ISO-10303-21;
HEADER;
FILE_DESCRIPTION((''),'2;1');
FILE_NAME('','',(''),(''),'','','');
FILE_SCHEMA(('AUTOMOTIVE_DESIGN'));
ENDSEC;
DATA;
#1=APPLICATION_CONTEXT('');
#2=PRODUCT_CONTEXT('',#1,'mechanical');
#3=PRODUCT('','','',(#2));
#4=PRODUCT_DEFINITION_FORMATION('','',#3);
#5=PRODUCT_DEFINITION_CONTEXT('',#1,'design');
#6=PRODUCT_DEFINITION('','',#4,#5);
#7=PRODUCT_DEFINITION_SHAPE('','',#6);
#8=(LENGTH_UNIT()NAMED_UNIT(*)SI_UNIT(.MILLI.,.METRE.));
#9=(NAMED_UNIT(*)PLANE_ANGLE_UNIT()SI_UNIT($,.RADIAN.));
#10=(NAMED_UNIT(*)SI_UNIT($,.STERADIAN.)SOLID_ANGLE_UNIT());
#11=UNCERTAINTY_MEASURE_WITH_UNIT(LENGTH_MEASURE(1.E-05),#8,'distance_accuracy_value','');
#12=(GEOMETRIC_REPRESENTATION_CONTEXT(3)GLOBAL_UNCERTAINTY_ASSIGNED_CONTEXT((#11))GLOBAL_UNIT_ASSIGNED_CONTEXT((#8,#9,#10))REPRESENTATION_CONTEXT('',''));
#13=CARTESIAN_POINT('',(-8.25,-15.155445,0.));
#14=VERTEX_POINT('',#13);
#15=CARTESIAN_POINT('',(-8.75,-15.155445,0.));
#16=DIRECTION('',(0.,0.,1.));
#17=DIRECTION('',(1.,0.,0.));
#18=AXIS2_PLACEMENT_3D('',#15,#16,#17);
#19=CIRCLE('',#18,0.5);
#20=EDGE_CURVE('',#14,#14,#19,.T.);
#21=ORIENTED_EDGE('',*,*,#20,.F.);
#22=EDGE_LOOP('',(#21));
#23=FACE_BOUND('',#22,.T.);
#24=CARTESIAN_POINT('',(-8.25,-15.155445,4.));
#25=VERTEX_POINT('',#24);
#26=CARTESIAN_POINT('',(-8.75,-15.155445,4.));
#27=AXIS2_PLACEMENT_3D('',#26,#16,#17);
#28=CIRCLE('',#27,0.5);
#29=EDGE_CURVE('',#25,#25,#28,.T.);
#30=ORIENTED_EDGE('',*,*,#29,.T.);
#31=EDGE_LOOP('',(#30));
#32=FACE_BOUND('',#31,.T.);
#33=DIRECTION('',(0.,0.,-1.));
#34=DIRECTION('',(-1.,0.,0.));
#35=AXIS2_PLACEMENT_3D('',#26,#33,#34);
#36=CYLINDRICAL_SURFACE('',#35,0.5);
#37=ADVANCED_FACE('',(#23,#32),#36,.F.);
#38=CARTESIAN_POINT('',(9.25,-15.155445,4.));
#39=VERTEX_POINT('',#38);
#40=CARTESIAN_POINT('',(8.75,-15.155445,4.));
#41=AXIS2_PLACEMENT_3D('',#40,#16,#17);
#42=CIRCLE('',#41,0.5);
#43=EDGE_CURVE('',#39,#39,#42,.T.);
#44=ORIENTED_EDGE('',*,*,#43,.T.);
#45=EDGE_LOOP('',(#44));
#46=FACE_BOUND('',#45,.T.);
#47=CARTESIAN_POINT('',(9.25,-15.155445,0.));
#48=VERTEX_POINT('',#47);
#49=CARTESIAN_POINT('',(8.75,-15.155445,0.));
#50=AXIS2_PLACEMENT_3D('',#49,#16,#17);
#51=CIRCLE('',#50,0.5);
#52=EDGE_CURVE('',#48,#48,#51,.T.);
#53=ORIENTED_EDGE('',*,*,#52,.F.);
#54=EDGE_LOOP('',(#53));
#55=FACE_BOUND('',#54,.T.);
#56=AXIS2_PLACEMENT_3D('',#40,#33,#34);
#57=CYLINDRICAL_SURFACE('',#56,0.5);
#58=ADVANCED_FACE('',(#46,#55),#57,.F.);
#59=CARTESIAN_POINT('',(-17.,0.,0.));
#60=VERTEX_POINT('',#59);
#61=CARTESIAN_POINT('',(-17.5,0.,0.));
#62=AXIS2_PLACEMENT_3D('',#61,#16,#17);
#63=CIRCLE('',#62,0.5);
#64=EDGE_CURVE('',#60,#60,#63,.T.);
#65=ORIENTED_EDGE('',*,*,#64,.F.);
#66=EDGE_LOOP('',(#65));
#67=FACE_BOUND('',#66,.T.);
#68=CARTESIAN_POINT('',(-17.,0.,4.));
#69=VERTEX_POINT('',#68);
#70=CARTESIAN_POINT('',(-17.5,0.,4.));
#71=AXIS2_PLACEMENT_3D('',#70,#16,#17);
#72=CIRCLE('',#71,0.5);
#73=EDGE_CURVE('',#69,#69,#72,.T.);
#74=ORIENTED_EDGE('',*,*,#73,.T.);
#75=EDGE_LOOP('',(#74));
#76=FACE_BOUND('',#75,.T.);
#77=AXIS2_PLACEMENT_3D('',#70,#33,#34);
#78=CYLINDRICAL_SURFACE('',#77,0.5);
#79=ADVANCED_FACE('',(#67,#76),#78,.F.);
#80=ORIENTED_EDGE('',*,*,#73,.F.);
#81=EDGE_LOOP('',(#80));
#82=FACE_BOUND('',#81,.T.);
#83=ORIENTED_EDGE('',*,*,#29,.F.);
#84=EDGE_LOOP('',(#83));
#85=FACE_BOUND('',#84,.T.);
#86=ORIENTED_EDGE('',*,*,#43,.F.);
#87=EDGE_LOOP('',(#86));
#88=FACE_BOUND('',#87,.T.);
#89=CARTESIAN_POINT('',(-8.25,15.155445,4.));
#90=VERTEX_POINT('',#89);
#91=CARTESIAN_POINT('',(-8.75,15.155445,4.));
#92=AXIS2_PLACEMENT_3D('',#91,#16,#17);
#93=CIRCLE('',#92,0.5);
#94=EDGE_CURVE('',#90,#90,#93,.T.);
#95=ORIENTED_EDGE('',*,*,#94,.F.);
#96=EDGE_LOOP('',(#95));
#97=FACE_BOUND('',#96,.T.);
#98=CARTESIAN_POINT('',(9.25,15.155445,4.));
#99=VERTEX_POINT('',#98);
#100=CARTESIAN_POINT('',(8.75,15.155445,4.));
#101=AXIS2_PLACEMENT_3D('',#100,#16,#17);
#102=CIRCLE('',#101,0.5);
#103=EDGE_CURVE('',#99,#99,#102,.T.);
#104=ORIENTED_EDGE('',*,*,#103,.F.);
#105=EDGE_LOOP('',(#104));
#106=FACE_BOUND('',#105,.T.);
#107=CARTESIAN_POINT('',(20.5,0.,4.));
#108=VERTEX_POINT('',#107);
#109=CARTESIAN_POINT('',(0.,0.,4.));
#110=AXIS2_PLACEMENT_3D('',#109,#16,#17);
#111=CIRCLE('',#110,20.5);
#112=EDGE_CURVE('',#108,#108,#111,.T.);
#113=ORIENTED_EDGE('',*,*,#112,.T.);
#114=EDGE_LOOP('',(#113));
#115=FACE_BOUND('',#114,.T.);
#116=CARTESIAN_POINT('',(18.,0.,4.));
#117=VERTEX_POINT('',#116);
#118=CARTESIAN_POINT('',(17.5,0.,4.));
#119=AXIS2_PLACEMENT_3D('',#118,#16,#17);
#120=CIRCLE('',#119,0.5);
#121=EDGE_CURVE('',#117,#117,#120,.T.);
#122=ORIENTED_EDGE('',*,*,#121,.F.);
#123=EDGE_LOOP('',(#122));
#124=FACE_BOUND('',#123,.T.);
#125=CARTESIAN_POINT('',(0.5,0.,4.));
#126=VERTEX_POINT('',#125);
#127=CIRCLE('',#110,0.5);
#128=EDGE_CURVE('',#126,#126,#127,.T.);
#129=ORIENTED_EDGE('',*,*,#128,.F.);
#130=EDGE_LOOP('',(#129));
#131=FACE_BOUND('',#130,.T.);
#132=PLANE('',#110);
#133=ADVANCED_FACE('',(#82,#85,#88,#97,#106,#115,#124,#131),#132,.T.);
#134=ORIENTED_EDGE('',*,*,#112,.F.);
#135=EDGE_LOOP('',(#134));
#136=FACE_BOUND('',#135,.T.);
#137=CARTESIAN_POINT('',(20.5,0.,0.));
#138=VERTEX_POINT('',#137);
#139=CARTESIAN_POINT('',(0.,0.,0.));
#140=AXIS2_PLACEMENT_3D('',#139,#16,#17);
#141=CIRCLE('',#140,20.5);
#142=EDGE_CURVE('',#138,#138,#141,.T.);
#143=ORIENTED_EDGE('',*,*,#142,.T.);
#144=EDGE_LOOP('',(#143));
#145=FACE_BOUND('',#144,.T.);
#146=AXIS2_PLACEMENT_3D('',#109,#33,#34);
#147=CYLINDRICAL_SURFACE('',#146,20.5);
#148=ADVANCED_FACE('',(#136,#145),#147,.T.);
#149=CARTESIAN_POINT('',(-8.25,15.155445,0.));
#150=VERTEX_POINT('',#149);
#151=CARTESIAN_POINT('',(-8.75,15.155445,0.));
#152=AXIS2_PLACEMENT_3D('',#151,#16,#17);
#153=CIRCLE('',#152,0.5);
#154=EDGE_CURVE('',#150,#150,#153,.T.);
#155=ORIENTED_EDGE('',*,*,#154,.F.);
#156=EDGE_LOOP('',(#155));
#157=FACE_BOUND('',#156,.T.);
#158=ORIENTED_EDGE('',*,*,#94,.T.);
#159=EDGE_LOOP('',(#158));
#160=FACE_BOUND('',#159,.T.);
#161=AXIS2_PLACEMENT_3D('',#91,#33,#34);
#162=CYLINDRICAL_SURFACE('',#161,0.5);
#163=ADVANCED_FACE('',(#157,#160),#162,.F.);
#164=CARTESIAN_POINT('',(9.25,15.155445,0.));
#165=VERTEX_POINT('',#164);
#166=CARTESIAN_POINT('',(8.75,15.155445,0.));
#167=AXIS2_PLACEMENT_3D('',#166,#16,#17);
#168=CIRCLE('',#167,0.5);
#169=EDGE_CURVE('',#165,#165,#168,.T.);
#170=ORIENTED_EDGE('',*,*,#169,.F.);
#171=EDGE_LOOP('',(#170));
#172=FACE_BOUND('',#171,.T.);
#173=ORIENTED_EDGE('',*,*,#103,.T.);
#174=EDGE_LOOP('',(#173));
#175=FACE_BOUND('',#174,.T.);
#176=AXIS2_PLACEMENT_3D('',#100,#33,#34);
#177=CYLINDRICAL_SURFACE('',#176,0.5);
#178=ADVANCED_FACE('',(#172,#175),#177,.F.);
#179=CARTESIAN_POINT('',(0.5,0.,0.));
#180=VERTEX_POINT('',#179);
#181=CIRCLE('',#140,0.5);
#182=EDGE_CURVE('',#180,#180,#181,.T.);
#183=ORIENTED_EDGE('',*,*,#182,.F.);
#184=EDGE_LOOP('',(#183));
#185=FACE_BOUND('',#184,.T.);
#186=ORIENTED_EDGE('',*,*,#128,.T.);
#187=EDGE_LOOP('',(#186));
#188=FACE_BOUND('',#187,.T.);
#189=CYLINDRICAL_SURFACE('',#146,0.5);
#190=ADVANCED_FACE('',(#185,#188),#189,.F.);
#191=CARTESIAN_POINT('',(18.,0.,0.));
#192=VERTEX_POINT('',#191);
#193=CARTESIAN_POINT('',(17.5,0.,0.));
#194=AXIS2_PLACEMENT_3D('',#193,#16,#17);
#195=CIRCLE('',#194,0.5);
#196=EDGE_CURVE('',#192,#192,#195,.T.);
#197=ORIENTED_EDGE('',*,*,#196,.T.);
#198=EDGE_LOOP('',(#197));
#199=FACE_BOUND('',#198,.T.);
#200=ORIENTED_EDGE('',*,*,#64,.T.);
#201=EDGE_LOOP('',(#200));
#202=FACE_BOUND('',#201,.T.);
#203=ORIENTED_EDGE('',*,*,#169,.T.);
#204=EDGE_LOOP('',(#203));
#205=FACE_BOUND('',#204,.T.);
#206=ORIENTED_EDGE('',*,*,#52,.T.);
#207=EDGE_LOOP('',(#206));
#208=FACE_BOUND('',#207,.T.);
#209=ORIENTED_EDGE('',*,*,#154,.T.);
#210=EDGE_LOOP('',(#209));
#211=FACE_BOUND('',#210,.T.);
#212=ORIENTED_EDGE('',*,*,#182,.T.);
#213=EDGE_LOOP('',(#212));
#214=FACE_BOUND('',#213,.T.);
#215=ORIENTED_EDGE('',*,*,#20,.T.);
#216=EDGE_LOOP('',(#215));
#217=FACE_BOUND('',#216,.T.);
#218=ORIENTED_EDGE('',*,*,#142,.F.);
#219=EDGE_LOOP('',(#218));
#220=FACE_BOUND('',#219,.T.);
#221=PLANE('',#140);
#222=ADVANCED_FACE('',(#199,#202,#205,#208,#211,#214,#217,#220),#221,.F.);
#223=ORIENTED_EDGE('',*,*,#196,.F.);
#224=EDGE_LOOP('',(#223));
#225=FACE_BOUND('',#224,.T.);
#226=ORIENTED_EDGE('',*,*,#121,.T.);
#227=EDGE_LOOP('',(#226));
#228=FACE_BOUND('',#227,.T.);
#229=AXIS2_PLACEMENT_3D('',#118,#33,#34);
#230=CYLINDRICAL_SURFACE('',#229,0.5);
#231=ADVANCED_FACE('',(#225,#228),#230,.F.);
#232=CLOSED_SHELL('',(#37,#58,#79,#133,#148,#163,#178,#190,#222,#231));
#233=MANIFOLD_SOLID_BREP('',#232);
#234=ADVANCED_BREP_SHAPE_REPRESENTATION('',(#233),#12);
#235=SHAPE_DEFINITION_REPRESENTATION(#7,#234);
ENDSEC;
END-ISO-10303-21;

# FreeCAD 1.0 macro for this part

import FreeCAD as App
import Part
import Sketcher

doc = App.newDocument("Part")
params = doc.addObject("Spreadsheet::Sheet", "Params")
for row, (alias, value) in enumerate([
    ("sketch1_diameter", "41 mm"),
    ("sketch1_diameter2", "1 mm"),
    ("pad1_length", "4 mm"),
], start=1):
    params.set(f"A{row}", alias)
    params.set(f"B{row}", "=" + value)
    params.setAlias(f"B{row}", alias)

body = doc.addObject("PartDesign::Body", "Body")

sketch1 = body.newObject("Sketcher::SketchObject", "Sketch")
sketch1.AttachmentSupport = (doc.getObject("XY_Plane"), [""])
sketch1.MapMode = "FlatFace"
sketch1.addGeometry(Part.Circle(App.Vector(0, 0, 0), App.Vector(0, 0, 1), 20.5), False)
sketch1.addGeometry(Part.Circle(App.Vector(-8.8, -15.2, 0), App.Vector(0, 0, 1), 0.5), False)
sketch1.addGeometry(Part.Circle(App.Vector(8.8, -15.2, 0), App.Vector(0, 0, 1), 0.5), False)
sketch1.addGeometry(Part.Circle(App.Vector(-17.5, 0, 0), App.Vector(0, 0, 1), 0.5), False)
sketch1.addGeometry(Part.Circle(App.Vector(-8.8, 15.2, 0), App.Vector(0, 0, 1), 0.5), False)
sketch1.addGeometry(Part.Circle(App.Vector(0, 0, 0), App.Vector(0, 0, 1), 0.5), False)
sketch1.addGeometry(Part.Circle(App.Vector(17.5, 0, 0), App.Vector(0, 0, 1), 0.5), False)
sketch1.addGeometry(Part.Circle(App.Vector(8.8, 15.2, 0), App.Vector(0, 0, 1), 0.5), False)
sketch1.addConstraint(Sketcher.Constraint("Coincident", 0, 3, -1, 1))
sketch1.addConstraint(Sketcher.Constraint("Coincident", 5, 3, -1, 1))
sketch1.addConstraint(Sketcher.Constraint("Equal", 1, 2))
sketch1.addConstraint(Sketcher.Constraint("Equal", 2, 3))
sketch1.addConstraint(Sketcher.Constraint("Equal", 3, 4))
sketch1.addConstraint(Sketcher.Constraint("Equal", 4, 5))
sketch1.addConstraint(Sketcher.Constraint("Equal", 5, 6))
sketch1.addConstraint(Sketcher.Constraint("Equal", 6, 7))
sketch1.addConstraint(Sketcher.Constraint("Symmetric", 2, 3, 4, 3, -1, 1))
sketch1.addConstraint(Sketcher.Constraint("Symmetric", 3, 3, 6, 3, -1, 1))
sketch1.addConstraint(Sketcher.Constraint("Symmetric", 1, 3, 7, 3, -1, 1))
sketch1.addConstraint(Sketcher.Constraint("Symmetric", 1, 3, 2, 3, -2))
sketch1.addConstraint(Sketcher.Constraint("PointOnObject", 3, 3, -1))
sketch1.addConstraint(Sketcher.Constraint("Diameter", 0, 41.0))
sketch1.addConstraint(Sketcher.Constraint("Diameter", 1, 1.0))
sketch1.addConstraint(Sketcher.Constraint("DistanceX", 3, 3, -1, 1, 17.5))
sketch1.addConstraint(Sketcher.Constraint("DistanceX", 1, 3, 2, 3, 17.5))
sketch1.addConstraint(Sketcher.Constraint("DistanceY", 1, 3, 4, 3, 30.310889))
sketch1.setExpression("Constraints[13]", "Params.sketch1_diameter")
sketch1.setExpression("Constraints[14]", "Params.sketch1_diameter2")
pad1 = body.newObject("PartDesign::Pad", "Pad")
pad1.Profile = sketch1
pad1.setExpression("Length", "Params.pad1_length")

doc.recompute()
